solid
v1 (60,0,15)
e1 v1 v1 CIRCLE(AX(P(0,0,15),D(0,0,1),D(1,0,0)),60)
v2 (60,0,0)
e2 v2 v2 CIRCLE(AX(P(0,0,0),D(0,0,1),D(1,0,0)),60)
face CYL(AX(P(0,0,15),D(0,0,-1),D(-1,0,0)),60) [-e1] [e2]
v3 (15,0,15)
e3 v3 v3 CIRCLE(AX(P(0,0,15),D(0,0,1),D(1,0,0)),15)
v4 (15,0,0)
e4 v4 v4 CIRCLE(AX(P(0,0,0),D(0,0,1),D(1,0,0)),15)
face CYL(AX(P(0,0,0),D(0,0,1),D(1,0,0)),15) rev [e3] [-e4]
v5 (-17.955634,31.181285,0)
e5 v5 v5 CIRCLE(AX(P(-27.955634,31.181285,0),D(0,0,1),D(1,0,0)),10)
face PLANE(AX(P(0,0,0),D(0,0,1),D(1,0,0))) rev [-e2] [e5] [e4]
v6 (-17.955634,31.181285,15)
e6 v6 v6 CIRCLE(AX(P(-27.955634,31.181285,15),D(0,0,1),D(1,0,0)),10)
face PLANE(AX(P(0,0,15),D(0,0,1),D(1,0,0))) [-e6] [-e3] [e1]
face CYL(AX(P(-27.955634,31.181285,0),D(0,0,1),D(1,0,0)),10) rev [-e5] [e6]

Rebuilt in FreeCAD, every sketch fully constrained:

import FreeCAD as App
import Part
import Sketcher

V = App.Vector
Q = App.Units.Quantity

doc = App.newDocument("Part")
body = doc.addObject("PartDesign::Body", "Body")

# Sketch on XY plane
sketch1 = body.newObject("Sketcher::SketchObject", "Sketch")
sketch1.AttachmentSupport = (doc.getObject("XY_Plane"), [""])
sketch1.MapMode = "FlatFace"
sketch1.addGeometry(Part.Circle(V(0, 0, 0), V(0, 0, 1), 60), False)
sketch1.addConstraint([
    Sketcher.Constraint("Coincident", 0, 3, -1, 1),
    Sketcher.Constraint("Diameter", 0, Q("120 mm")),
])
pad1 = body.newObject("PartDesign::Pad", "Pad")
pad1.Profile = sketch1
pad1.Length = 15

# Sketch on XY plane
sketch2 = body.newObject("Sketcher::SketchObject", "Sketch001")
sketch2.AttachmentSupport = (doc.getObject("XY_Plane"), [""])
sketch2.MapMode = "FlatFace"
sketch2.AttachmentOffset = App.Placement(V(0, 0, 15), App.Rotation())
sketch2.addGeometry(Part.Circle(V(0, 0, 0), V(0, 0, 1), 15), False)
sketch2.addConstraint([
    Sketcher.Constraint("Coincident", 0, 3, -1, 1),
    Sketcher.Constraint("Diameter", 0, Q("30 mm")),
])
pocket1 = body.newObject("PartDesign::Pocket", "Pocket")
pocket1.Profile = sketch2
pocket1.Length = 15

# Sketch on XY plane
sketch3 = body.newObject("Sketcher::SketchObject", "Sketch002")
sketch3.AttachmentSupport = (doc.getObject("XY_Plane"), [""])
sketch3.MapMode = "FlatFace"
sketch3.AttachmentOffset = App.Placement(V(0, 0, 15), App.Rotation())
sketch3.addGeometry(Part.Circle(V(-28, 31, 0), V(0, 0, 1), 10), False)
sketch3.addConstraint([
    Sketcher.Constraint("Diameter", 0, Q("20 mm")),
    Sketcher.Constraint("DistanceX", 0, 3, -1, 1, Q("27.955634 mm")),
    Sketcher.Constraint("DistanceY", -1, 1, 0, 3, Q("31.181285 mm")),
])
pocket2 = body.newObject("PartDesign::Pocket", "Pocket001")
pocket2.Profile = sketch3
pocket2.Length = 15

doc.recompute()
